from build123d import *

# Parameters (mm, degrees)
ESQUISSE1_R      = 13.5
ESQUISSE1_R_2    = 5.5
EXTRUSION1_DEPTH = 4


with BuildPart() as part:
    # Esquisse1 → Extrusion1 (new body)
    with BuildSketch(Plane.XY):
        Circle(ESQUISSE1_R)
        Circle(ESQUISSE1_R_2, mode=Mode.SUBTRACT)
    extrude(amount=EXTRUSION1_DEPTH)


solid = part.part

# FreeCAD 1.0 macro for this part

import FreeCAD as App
import Part
import Sketcher

V = App.Vector

doc = App.newDocument("Part")
params = doc.addObject("Spreadsheet::Sheet", "Params")
for row, (alias, value) in enumerate([
    ("sketch1_diameter", "27 mm"),
    ("sketch1_diameter2", "11 mm"),
    ("pad1_length", "4 mm"),
], start=1):
    params.set(f"A{row}", alias)
    params.set(f"B{row}", "=" + value)
    params.setAlias(f"B{row}", alias)

body = doc.addObject("PartDesign::Body", "Body")

sketch1 = body.newObject("Sketcher::SketchObject", "Sketch")
sketch1.AttachmentSupport = (doc.getObject("XY_Plane"), [""])
sketch1.MapMode = "FlatFace"
sketch1.addGeometry(Part.Circle(V(0, 0, 0), V(0, 0, 1), 14), False)
sketch1.addGeometry(Part.Circle(V(0, 0, 0), V(0, 0, 1), 6), False)
sketch1.addConstraint(Sketcher.Constraint("Coincident", 0, 3, -1, 1))
sketch1.addConstraint(Sketcher.Constraint("Coincident", 1, 3, -1, 1))
sketch1.addConstraint(Sketcher.Constraint("Diameter", 0, 27.0))
sketch1.addConstraint(Sketcher.Constraint("Diameter", 1, 11.0))
sketch1.setExpression("Constraints[2]", "Params.sketch1_diameter")
sketch1.setExpression("Constraints[3]", "Params.sketch1_diameter2")
pad1 = body.newObject("PartDesign::Pad", "Pad")
pad1.Profile = sketch1
pad1.setExpression("Length", "Params.pad1_length")

doc.recompute()
